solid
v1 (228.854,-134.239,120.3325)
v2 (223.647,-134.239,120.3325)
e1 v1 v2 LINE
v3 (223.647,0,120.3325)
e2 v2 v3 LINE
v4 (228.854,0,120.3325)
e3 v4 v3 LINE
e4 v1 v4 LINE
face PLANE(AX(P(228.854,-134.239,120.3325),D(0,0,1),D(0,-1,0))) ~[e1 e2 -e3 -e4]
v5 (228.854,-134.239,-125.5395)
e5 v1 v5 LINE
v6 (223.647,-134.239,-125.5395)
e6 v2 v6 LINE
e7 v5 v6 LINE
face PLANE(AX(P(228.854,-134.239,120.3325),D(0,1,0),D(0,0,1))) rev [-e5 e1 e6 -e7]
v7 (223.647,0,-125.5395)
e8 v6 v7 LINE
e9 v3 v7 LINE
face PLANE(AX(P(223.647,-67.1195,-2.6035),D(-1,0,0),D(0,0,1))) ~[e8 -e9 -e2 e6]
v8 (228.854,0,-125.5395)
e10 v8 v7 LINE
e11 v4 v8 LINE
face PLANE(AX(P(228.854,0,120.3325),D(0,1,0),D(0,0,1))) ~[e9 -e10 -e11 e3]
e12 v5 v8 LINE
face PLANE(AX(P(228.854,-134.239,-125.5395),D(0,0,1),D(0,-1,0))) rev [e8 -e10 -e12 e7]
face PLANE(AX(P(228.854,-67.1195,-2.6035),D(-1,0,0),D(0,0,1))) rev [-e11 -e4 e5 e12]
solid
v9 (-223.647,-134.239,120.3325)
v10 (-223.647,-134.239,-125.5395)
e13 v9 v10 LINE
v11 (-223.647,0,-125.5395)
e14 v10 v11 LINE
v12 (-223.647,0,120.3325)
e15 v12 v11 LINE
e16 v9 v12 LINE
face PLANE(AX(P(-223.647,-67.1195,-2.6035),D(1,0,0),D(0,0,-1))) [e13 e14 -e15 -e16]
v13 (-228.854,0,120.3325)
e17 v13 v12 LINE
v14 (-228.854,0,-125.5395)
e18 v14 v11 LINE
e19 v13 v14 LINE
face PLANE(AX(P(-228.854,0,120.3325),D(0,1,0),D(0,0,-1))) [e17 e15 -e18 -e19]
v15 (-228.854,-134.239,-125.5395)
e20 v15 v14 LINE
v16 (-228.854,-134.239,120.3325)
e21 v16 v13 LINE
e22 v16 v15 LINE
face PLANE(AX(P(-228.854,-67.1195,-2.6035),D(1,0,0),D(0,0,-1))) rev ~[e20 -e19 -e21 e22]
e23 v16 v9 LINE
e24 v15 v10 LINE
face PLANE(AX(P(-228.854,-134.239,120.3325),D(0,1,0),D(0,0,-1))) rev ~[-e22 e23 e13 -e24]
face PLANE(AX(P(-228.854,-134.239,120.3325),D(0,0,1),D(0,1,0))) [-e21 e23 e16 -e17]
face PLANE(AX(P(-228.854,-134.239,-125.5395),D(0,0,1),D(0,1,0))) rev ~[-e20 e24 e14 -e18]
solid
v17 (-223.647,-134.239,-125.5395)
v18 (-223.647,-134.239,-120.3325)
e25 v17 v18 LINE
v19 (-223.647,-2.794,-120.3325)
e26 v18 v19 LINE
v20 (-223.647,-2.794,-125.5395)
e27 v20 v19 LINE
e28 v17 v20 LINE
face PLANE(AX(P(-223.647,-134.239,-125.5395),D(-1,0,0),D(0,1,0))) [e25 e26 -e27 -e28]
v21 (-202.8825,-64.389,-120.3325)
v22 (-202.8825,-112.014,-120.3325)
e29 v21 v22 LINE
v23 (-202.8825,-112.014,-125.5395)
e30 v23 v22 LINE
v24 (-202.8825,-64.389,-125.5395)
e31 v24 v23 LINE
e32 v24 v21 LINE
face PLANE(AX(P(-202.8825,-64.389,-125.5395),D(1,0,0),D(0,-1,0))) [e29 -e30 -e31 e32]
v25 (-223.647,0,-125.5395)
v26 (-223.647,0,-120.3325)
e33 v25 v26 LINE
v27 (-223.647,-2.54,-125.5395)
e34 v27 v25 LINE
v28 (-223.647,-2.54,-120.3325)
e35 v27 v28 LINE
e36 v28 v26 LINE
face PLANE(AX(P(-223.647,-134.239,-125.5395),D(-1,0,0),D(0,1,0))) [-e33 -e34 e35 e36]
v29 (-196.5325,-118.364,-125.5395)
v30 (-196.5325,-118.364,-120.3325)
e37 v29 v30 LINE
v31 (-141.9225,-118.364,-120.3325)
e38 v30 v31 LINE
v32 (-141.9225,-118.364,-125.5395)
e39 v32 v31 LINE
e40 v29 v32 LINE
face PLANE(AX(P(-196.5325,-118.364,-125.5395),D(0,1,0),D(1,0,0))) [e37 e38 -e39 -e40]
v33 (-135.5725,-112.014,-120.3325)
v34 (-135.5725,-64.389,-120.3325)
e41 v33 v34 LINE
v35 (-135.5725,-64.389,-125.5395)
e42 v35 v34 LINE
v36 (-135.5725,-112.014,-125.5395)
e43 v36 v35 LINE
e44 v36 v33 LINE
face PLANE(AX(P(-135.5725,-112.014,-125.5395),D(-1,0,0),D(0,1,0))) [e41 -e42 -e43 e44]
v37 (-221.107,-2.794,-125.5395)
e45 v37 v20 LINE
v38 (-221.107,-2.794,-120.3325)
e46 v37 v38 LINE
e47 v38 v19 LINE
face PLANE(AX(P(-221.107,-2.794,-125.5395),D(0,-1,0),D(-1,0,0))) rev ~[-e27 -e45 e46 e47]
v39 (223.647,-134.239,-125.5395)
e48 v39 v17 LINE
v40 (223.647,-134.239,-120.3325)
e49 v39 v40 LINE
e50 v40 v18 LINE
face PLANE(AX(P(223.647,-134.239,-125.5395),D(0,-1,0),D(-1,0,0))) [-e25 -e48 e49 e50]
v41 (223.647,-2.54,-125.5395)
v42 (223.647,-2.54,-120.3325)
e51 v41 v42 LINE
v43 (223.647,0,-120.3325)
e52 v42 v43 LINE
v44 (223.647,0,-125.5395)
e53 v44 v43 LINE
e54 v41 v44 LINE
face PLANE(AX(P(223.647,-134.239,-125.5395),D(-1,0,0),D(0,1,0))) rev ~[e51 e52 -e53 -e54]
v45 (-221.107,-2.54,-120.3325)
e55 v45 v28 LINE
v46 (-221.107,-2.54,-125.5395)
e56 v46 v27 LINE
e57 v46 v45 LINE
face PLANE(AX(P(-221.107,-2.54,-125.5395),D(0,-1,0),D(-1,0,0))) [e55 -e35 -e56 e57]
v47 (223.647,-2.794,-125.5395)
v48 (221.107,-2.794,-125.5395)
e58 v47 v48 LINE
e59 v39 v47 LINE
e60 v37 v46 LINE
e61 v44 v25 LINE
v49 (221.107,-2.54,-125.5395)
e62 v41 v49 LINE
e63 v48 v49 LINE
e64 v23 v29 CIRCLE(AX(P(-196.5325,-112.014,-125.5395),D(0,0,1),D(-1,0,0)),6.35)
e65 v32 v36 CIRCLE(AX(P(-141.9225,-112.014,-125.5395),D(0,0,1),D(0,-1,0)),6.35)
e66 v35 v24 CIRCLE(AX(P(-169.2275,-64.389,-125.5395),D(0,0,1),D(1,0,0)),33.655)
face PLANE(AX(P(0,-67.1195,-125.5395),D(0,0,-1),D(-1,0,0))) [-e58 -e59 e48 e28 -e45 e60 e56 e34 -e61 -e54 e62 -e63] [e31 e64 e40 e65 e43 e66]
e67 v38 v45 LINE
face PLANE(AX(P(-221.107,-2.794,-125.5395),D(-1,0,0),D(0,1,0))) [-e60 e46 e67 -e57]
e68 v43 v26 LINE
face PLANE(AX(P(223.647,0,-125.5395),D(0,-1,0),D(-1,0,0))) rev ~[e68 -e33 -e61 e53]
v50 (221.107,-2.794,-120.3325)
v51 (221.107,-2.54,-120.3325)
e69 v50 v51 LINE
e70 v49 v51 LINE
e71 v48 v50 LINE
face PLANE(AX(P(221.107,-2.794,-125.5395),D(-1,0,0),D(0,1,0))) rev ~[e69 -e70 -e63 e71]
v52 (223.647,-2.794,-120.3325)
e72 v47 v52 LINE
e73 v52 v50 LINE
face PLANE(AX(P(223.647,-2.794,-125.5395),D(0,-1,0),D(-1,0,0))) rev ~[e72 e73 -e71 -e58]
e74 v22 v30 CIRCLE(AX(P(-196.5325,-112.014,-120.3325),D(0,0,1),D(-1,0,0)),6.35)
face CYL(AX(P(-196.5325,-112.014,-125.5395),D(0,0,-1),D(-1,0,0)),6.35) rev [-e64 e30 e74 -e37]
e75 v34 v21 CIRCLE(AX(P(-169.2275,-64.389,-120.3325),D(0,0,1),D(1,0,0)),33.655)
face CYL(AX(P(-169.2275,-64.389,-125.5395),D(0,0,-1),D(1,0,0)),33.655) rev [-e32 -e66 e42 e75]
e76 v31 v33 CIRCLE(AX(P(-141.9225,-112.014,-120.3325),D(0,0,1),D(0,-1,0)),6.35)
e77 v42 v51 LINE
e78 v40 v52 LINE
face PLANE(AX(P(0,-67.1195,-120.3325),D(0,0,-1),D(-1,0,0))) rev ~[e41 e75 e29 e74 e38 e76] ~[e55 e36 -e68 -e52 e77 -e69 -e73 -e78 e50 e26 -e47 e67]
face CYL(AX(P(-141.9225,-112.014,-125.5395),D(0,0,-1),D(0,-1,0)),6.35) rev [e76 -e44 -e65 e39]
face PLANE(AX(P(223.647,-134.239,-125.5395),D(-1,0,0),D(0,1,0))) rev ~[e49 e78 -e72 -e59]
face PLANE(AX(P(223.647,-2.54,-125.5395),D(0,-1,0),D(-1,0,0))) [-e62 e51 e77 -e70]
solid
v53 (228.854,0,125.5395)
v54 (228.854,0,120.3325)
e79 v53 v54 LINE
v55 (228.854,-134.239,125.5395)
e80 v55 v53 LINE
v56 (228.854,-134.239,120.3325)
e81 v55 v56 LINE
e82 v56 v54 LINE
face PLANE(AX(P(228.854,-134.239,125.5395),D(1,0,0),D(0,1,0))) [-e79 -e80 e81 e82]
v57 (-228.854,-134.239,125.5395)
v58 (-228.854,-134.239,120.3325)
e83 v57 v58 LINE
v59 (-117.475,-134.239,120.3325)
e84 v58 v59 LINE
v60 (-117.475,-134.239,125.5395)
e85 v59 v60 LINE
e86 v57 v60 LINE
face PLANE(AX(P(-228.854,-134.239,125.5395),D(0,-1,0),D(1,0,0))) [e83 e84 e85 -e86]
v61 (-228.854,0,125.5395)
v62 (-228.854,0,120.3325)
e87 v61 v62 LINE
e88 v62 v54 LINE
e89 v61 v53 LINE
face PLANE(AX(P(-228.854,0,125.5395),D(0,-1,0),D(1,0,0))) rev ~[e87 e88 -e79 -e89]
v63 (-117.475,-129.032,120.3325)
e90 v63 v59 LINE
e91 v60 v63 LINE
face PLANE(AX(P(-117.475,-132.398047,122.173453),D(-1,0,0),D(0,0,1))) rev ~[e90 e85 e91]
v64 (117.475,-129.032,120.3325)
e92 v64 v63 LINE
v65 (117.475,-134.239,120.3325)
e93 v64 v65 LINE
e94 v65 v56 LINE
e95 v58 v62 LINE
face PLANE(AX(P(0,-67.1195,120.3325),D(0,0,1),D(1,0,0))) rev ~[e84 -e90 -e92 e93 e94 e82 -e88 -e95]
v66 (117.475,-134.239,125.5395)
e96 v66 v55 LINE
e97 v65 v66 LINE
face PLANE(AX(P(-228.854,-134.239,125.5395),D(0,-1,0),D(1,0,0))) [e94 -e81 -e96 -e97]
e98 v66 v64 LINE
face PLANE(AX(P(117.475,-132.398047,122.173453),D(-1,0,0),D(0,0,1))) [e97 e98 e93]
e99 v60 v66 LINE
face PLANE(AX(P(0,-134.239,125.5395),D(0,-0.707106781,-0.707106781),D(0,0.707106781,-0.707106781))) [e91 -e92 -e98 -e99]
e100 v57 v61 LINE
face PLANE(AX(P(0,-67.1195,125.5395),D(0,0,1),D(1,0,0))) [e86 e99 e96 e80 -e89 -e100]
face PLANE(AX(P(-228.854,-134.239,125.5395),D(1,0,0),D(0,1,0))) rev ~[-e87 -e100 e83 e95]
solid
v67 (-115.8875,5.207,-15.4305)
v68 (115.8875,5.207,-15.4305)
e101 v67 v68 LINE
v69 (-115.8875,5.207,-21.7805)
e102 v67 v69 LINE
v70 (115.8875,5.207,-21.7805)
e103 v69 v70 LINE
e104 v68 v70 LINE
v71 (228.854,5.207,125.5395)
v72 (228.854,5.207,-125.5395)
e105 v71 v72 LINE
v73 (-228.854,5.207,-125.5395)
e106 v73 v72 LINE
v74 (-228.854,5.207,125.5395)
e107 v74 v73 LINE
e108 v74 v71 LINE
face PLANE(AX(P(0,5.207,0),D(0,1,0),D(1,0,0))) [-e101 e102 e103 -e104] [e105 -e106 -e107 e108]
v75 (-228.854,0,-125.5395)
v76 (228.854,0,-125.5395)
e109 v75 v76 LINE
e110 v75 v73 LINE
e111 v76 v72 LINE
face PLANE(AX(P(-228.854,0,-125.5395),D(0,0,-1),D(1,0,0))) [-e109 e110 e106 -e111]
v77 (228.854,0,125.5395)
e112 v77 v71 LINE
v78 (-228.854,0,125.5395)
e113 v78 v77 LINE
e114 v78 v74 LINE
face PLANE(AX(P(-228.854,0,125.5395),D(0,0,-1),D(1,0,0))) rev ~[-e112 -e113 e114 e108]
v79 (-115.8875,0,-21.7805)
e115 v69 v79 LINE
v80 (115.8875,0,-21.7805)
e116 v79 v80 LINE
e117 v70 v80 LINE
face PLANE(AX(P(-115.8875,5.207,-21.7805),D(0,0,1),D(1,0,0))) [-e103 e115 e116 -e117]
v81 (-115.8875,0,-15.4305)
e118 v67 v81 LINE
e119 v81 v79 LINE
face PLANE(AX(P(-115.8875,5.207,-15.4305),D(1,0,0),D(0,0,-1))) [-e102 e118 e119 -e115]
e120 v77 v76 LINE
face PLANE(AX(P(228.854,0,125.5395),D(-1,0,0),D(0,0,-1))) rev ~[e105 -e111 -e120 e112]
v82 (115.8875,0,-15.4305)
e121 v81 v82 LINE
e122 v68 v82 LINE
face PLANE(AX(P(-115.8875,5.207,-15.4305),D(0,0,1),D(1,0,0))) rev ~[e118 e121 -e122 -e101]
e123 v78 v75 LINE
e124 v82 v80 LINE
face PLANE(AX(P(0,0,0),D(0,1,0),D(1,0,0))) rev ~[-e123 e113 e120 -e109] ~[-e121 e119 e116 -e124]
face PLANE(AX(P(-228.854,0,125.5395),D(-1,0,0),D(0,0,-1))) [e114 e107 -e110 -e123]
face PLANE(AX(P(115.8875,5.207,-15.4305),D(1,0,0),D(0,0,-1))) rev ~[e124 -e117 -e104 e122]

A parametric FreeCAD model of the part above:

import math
import FreeCAD as App
import Part
import Sketcher
from FreeCAD import Vector
Q = App.Units.Quantity


def add_polygon(sketch, points):
    """Adds a closed chain of lines whose ends are joined by coincident constraints."""
    first, n = sketch.GeometryCount, len(points)
    for a, b in zip(points, points[1:] + points[:1]):
        sketch.addGeometry(Part.LineSegment(App.Vector(*a, 0), App.Vector(*b, 0)), False)
    for i in range(n):
        sketch.addConstraint(Sketcher.Constraint("Coincident", first + i, 2, first + (i + 1) % n, 1))

doc = App.newDocument("Part")
params = doc.addObject("Spreadsheet::Sheet", "Params")
for row, (alias, value) in enumerate([
    ("sketch1_width", "18.02 in"),
    ("sketch1_height", "9.885 in"),
    ("pad1_length", "0.205 in"),
    ("sketch2_height", "0.25 in"),
    ("sketch2_width", "9.125 in"),
    ("sketch3_width", "18.02 in"),
    ("sketch3_height", "5.285 in"),
    ("pad2_length", "0.205 in"),
    ("sketch4_width", "0.205 in"),
    ("pocket2_length", "9.25 in"),
    ("sketch5_height", "9.68 in"),
    ("sketch5_width", "5.285 in"),
    ("pad3_length", "0.205 in"),
    ("sketch6_radius", "0.25 in"),
    ("sketch6_radius2", "1.325 in"),
    ("sketch6_width", "17.61 in"),
    ("sketch6_height", "5.285 in"),
    ("sketch6_height2", "1.875 in"),
    ("pad4_length", "0.205 in"),
    ("sketch7_width", "0.1 in"),
    ("sketch7_height", "0.01 in"),
    ("pocket3_length", "0.205 in"),
], start=1):
    params.set(f"A{row}", alias)
    params.set(f"B{row}", "=" + value)
    params.setAlias(f"B{row}", alias)

body = doc.addObject("PartDesign::Body", "Body")

# Sketch on XZ plane
sketch1 = body.newObject("Sketcher::SketchObject", "Sketch")
sketch1.AttachmentSupport = (doc.getObject("XZ_Plane"), [""])
sketch1.MapMode = "FlatFace"
add_polygon(sketch1, [(-229, -126), (-229, 126), (229, 126), (229, -126)])  # lines 0-3
sketch1.addConstraint(Sketcher.Constraint("Vertical", 0))
sketch1.addConstraint(Sketcher.Constraint("Horizontal", 1))
sketch1.addConstraint(Sketcher.Constraint("Vertical", 2))
sketch1.addConstraint(Sketcher.Constraint("Horizontal", 3))
sketch1.addConstraint(Sketcher.Constraint("Symmetric", 0, 2, 2, 2, -1, 1))
sketch1.addConstraint(Sketcher.Constraint("DistanceX", 1, 1, 1, 2, Q("18.02 in")))
sketch1.addConstraint(Sketcher.Constraint("DistanceY", 0, 1, 0, 2, Q("9.885 in")))
sketch1.setExpression("Constraints[9]", "Params.sketch1_width")
sketch1.setExpression("Constraints[10]", "Params.sketch1_height")
pad1 = body.newObject("PartDesign::Pad", "Pad")
pad1.Profile = sketch1
pad1.setExpression("Length", "Params.pad1_length")
pad1.Reversed = True

# Sketch on XZ plane
sketch2 = body.newObject("Sketcher::SketchObject", "Sketch001")
sketch2.AttachmentSupport = (doc.getObject("XZ_Plane"), [""])
sketch2.MapMode = "FlatFace"
sketch2.AttachmentOffset = App.Placement(Vector(0, 0, -0.205 * 25.4), App.Rotation())
add_polygon(sketch2, [(-116, -22), (-116, -15), (116, -15), (116, -22)])  # lines 0-3
sketch2.addConstraint(Sketcher.Constraint("Vertical", 0))
sketch2.addConstraint(Sketcher.Constraint("Horizontal", 1))
sketch2.addConstraint(Sketcher.Constraint("Vertical", 2))
sketch2.addConstraint(Sketcher.Constraint("Horizontal", 3))
sketch2.addConstraint(Sketcher.Constraint("DistanceY", 0, 1, 0, 2, Q("0.25 in")))
sketch2.addConstraint(Sketcher.Constraint("DistanceX", 1, 1, 1, 2, Q("9.125 in")))
sketch2.addConstraint(Sketcher.Constraint("DistanceX", 0, 2, -1, 1, Q("4.5625 in")))
sketch2.addConstraint(Sketcher.Constraint("DistanceY", 0, 2, -1, 1, Q("0.6075 in")))
sketch2.setExpression("Constraints[8]", "Params.sketch2_height")
sketch2.setExpression("Constraints[9]", "Params.sketch2_width")
pocket1 = body.newObject("PartDesign::Pocket", "Pocket")
pocket1.Profile = sketch2
pocket1.Type = "ThroughAll"
pocket1.Reversed = True
body2 = doc.addObject("PartDesign::Body", "Body001")

# Sketch on XY plane
sketch3 = body2.newObject("Sketcher::SketchObject", "Sketch002")
sketch3.AttachmentSupport = (doc.getObject("XY_Plane001"), [""])
sketch3.MapMode = "FlatFace"
sketch3.AttachmentOffset = App.Placement(Vector(0, 0, 4.9425 * 25.4), App.Rotation())
add_polygon(sketch3, [(-229, 0), (-229, -134), (229, -134), (229, 0)])  # lines 0-3
sketch3.addConstraint(Sketcher.Constraint("Vertical", 0))
sketch3.addConstraint(Sketcher.Constraint("Horizontal", 1))
sketch3.addConstraint(Sketcher.Constraint("Vertical", 2))
sketch3.addConstraint(Sketcher.Constraint("Horizontal", 3))
sketch3.addConstraint(Sketcher.Constraint("Symmetric", 2, 2, 3, 2, -1, 1))
sketch3.addConstraint(Sketcher.Constraint("DistanceX", 1, 1, 1, 2, Q("18.02 in")))
sketch3.addConstraint(Sketcher.Constraint("DistanceY", 0, 2, 0, 1, Q("5.285 in")))
sketch3.setExpression("Constraints[9]", "Params.sketch3_width")
sketch3.setExpression("Constraints[10]", "Params.sketch3_height")
pad2 = body2.newObject("PartDesign::Pad", "Pad001")
pad2.Profile = sketch3
pad2.setExpression("Length", "Params.pad2_length")
pad2.Reversed = True

# Sketch on YZ plane
sketch4 = body2.newObject("Sketcher::SketchObject", "Sketch003")
sketch4.AttachmentSupport = (doc.getObject("YZ_Plane001"), [""])
sketch4.MapMode = "FlatFace"
add_polygon(sketch4, [(-129, 120), (-134, 126), (-134, 120)])  # lines 0-2
sketch4.addConstraint(Sketcher.Constraint("Vertical", 1))
sketch4.addConstraint(Sketcher.Constraint("Horizontal", 2))
sketch4.addConstraint(Sketcher.Constraint("Equal", 2, 1))
sketch4.addConstraint(Sketcher.Constraint("DistanceX", 2, 1, 2, 2, Q("0.205 in")))
sketch4.addConstraint(Sketcher.Constraint("DistanceX", 2, 2, -1, 1, Q("5.08 in")))
sketch4.addConstraint(Sketcher.Constraint("DistanceY", -1, 1, 0, 2, Q("4.9425 in")))
sketch4.setExpression("Constraints[6]", "Params.sketch4_width")
pocket2 = body2.newObject("PartDesign::Pocket", "Pocket001")
pocket2.Profile = sketch4
pocket2.setExpression("Length", "Params.pocket2_length")
pocket2.Midplane = True
body3 = doc.addObject("PartDesign::Body", "Body002")

# Sketch on YZ plane
sketch5 = body3.newObject("Sketcher::SketchObject", "Sketch004")
sketch5.AttachmentSupport = (doc.getObject("YZ_Plane002"), [""])
sketch5.MapMode = "FlatFace"
sketch5.AttachmentOffset = App.Placement(Vector(0, 0, -9.01 * 25.4), App.Rotation())
add_polygon(sketch5, [(0, 120), (-134, 120), (-134, -126), (0, -126)])  # lines 0-3
sketch5.addConstraint(Sketcher.Constraint("Horizontal", 0))
sketch5.addConstraint(Sketcher.Constraint("Vertical", 1))
sketch5.addConstraint(Sketcher.Constraint("Horizontal", 2))
sketch5.addConstraint(Sketcher.Constraint("Vertical", 3))
sketch5.addConstraint(Sketcher.Constraint("PointOnObject", 2, 2, -2))
sketch5.addConstraint(Sketcher.Constraint("DistanceY", 1, 2, 1, 1, Q("9.68 in")))
sketch5.addConstraint(Sketcher.Constraint("DistanceX", 0, 2, 0, 1, Q("5.285 in")))
sketch5.addConstraint(Sketcher.Constraint("DistanceY", -1, 1, 0, 2, Q("4.7375 in")))
sketch5.setExpression("Constraints[9]", "Params.sketch5_height")
sketch5.setExpression("Constraints[10]", "Params.sketch5_width")
pad3 = body3.newObject("PartDesign::Pad", "Pad002")
pad3.Profile = sketch5
pad3.setExpression("Length", "Params.pad3_length")
body4 = doc.addObject("PartDesign::Body", "Body003")
doc.recompute()

mirroring = doc.addObject("Part::Mirroring", "Mirroring")
mirroring.Source = body3
mirroring.Base = Vector(0, 0, 0)
mirroring.Normal = Vector(1, 0, 0)
body4.BaseFeature = mirroring
doc.recompute()
body5 = doc.addObject("PartDesign::Body", "Body004")

# Sketch on XY plane
sketch6 = body5.newObject("Sketcher::SketchObject", "Sketch005")
sketch6.AttachmentSupport = (doc.getObject("XY_Plane004"), [""])
sketch6.MapMode = "FlatFace"
sketch6.AttachmentOffset = App.Placement(Vector(0, 0, -4.9425 * 25.4), App.Rotation())
add_polygon(sketch6, [(224, 0), (224, -134), (-224, -134), (-224, 0)])  # lines 0-3
sketch6.addGeometry(Part.ArcOfCircle(Part.Circle(Vector(-169, -64, 0), Vector(0, 0, 1), 34), math.radians(0), math.radians(180)), False)  # 4
sketch6.addGeometry(Part.LineSegment(Vector(-203, -64, 0), Vector(-203, -112, 0)), False)  # 5
sketch6.addGeometry(Part.ArcOfCircle(Part.Circle(Vector(-197, -112, 0), Vector(0, 0, 1), 6), math.radians(180), math.radians(270)), False)  # 6
sketch6.addGeometry(Part.LineSegment(Vector(-197, -118, 0), Vector(-142, -118, 0)), False)  # 7
sketch6.addGeometry(Part.ArcOfCircle(Part.Circle(Vector(-142, -112, 0), Vector(0, 0, 1), 6), math.radians(-90), math.radians(0)), False)  # 8
sketch6.addGeometry(Part.LineSegment(Vector(-136, -112, 0), Vector(-136, -64, 0)), False)  # 9
sketch6.addConstraint(Sketcher.Constraint("Tangent", 4, 2, 5, 1))
sketch6.addConstraint(Sketcher.Constraint("Tangent", 5, 2, 6, 1))
sketch6.addConstraint(Sketcher.Constraint("Tangent", 6, 2, 7, 1))
sketch6.addConstraint(Sketcher.Constraint("Tangent", 7, 2, 8, 1))
sketch6.addConstraint(Sketcher.Constraint("Tangent", 8, 2, 9, 1))
sketch6.addConstraint(Sketcher.Constraint("Tangent", 9, 2, 4, 1))
sketch6.addConstraint(Sketcher.Constraint("Vertical", 0))
sketch6.addConstraint(Sketcher.Constraint("Horizontal", 1))
sketch6.addConstraint(Sketcher.Constraint("Vertical", 2))
sketch6.addConstraint(Sketcher.Constraint("Horizontal", 3))
sketch6.addConstraint(Sketcher.Constraint("Vertical", 5))
sketch6.addConstraint(Sketcher.Constraint("Horizontal", 7))
sketch6.addConstraint(Sketcher.Constraint("Vertical", 9))
sketch6.addConstraint(Sketcher.Constraint("Equal", 6, 8))
sketch6.addConstraint(Sketcher.Constraint("Symmetric", 2, 2, 3, 2, -1, 1))
sketch6.addConstraint(Sketcher.Constraint("Radius", 6, Q("0.25 in")))
sketch6.addConstraint(Sketcher.Constraint("Radius", 4, Q("1.325 in")))
sketch6.addConstraint(Sketcher.Constraint("DistanceX", 1, 2, 1, 1, Q("17.61 in")))
sketch6.addConstraint(Sketcher.Constraint("DistanceY", 0, 2, 0, 1, Q("5.285 in")))
sketch6.addConstraint(Sketcher.Constraint("DistanceY", 5, 2, 5, 1, Q("1.875 in")))
sketch6.addConstraint(Sketcher.Constraint("DistanceY", 6, 3, -1, 1, Q("4.41 in")))
sketch6.addConstraint(Sketcher.Constraint("DistanceX", 4, 3, -1, 1, Q("6.6625 in")))
sketch6.setExpression("Constraints[19]", "Params.sketch6_radius")
sketch6.setExpression("Constraints[20]", "Params.sketch6_radius2")
sketch6.setExpression("Constraints[21]", "Params.sketch6_width")
sketch6.setExpression("Constraints[22]", "Params.sketch6_height")
sketch6.setExpression("Constraints[23]", "Params.sketch6_height2")
pad4 = body5.newObject("PartDesign::Pad", "Pad003")
pad4.Profile = sketch6
pad4.setExpression("Length", "Params.pad4_length")

# Sketch on XY plane
sketch7 = body5.newObject("Sketcher::SketchObject", "Sketch006")
sketch7.AttachmentSupport = (doc.getObject("XY_Plane004"), [""])
sketch7.MapMode = "FlatFace"
sketch7.AttachmentOffset = App.Placement(Vector(0, 0, -4.9425 * 25.4), App.Rotation())
add_polygon(sketch7, [(-221.11, -2.54), (-221.11, -2.79), (-223.65, -2.79), (-223.65, -2.54)])  # lines 0-3
add_polygon(sketch7, [(223.65, -2.54), (223.65, -2.79), (221.11, -2.79), (221.11, -2.54)])  # lines 4-7
sketch7.addConstraint(Sketcher.Constraint("Vertical", 0))
sketch7.addConstraint(Sketcher.Constraint("Horizontal", 1))
sketch7.addConstraint(Sketcher.Constraint("Vertical", 2))
sketch7.addConstraint(Sketcher.Constraint("Horizontal", 3))
sketch7.addConstraint(Sketcher.Constraint("Vertical", 4))
sketch7.addConstraint(Sketcher.Constraint("Horizontal", 5))
sketch7.addConstraint(Sketcher.Constraint("Vertical", 6))
sketch7.addConstraint(Sketcher.Constraint("Horizontal", 7))
sketch7.addConstraint(Sketcher.Constraint("Symmetric", 1, 2, 4, 2, -2))
sketch7.addConstraint(Sketcher.Constraint("Symmetric", 3, 2, 6, 2, -2))
sketch7.addConstraint(Sketcher.Constraint("DistanceX", 1, 2, 1, 1, Q("0.1 in")))
sketch7.addConstraint(Sketcher.Constraint("DistanceY", 0, 2, 0, 1, Q("0.01 in")))
sketch7.addConstraint(Sketcher.Constraint("DistanceY", 2, 2, -1, 1, Q("0.1 in")))
sketch7.addConstraint(Sketcher.Constraint("DistanceX", 0, 2, 4, 2, Q("17.51 in")))
sketch7.setExpression("Constraints[18]", "Params.sketch7_width")
sketch7.setExpression("Constraints[19]", "Params.sketch7_height")
pocket3 = body5.newObject("PartDesign::Pocket", "Pocket002")
pocket3.Profile = sketch7
pocket3.setExpression("Length", "Params.pocket3_length")
pocket3.Reversed = True
mirroring.Visibility = False

doc.recompute()
